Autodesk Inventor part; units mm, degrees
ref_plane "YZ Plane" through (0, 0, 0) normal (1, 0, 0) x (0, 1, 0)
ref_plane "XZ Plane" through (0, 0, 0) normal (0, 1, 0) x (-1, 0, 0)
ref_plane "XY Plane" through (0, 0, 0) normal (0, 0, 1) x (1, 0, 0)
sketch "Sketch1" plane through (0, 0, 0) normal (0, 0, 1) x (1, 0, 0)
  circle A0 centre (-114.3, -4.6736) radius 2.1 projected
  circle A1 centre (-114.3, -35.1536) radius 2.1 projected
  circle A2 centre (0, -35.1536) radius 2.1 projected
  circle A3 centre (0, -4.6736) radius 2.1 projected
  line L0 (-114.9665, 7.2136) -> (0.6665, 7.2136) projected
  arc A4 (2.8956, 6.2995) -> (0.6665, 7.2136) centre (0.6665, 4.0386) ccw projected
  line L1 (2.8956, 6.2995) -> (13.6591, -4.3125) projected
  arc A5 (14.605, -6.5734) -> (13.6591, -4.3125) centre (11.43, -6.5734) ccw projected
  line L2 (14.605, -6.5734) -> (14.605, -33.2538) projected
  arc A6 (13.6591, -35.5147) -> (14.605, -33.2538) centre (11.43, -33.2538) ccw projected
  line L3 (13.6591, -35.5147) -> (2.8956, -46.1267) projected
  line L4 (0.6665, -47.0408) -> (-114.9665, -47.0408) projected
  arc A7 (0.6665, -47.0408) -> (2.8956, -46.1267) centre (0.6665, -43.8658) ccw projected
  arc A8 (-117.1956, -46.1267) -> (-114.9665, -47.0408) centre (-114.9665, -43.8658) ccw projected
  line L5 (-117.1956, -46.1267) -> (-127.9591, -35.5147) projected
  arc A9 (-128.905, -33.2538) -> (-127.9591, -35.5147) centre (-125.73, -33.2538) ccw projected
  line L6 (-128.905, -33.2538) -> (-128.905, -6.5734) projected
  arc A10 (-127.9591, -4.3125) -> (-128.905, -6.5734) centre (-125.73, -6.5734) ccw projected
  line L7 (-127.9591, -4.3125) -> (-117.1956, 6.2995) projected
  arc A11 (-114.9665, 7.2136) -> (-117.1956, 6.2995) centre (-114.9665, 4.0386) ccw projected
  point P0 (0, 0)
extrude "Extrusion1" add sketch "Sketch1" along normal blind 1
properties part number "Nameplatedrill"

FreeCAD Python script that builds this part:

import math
import FreeCAD as App
import Part
import Sketcher
from FreeCAD import Vector
Q = App.Units.Quantity

doc = App.newDocument("Part")
body = doc.addObject("PartDesign::Body", "Body")

# Sketch on XY plane
sketch1 = body.newObject("Sketcher::SketchObject", "Sketch")
sketch1.AttachmentSupport = (doc.getObject("XY_Plane"), [""])
sketch1.MapMode = "FlatFace"
sketch1.addGeometry([
    Part.LineSegment(Vector(0.6665, 7.2136, 0), Vector(-114.9665, 7.2136, 0)),  # 0
    Part.ArcOfCircle(Part.Circle(Vector(-114.9665, 4.0386, 0), Vector(0, 0, 1), 3.175), math.radians(90), math.radians(134.594215)),  # 1
    Part.LineSegment(Vector(-117.1956, 6.2995, 0), Vector(-127.9591, -4.3125, 0)),  # 2
    Part.ArcOfCircle(Part.Circle(Vector(-125.73, -6.5734, 0), Vector(0, 0, 1), 3.174989), math.radians(134.594215), math.radians(180)),  # 3
    Part.LineSegment(Vector(-128.905, -6.5734, 0), Vector(-128.905, -33.2538, 0)),  # 4
    Part.ArcOfCircle(Part.Circle(Vector(-125.73, -33.2538, 0), Vector(0, 0, 1), 3.175), math.radians(180), math.radians(225.405785)),  # 5
    Part.LineSegment(Vector(-127.9591, -35.5147, 0), Vector(-117.1956, -46.1267, 0)),  # 6
    Part.ArcOfCircle(Part.Circle(Vector(-114.9665, -43.8658, 0), Vector(0, 0, 1), 3.174989), math.radians(-134.594215), math.radians(-90)),  # 7
    Part.LineSegment(Vector(-114.9665, -47.0408, 0), Vector(0.6665, -47.0408, 0)),  # 8
    Part.ArcOfCircle(Part.Circle(Vector(0.6665, -43.8658, 0), Vector(0, 0, 1), 3.175), math.radians(-90), math.radians(-45.405785)),  # 9
    Part.LineSegment(Vector(2.8956, -46.1267, 0), Vector(13.6591, -35.5147, 0)),  # 10
    Part.ArcOfCircle(Part.Circle(Vector(11.43, -33.2538, 0), Vector(0, 0, 1), 3.174989), math.radians(-45.405785), math.radians(0)),  # 11
    Part.LineSegment(Vector(14.605, -33.2538, 0), Vector(14.605, -6.5734, 0)),  # 12
    Part.ArcOfCircle(Part.Circle(Vector(11.43, -6.5734, 0), Vector(0, 0, 1), 3.175), math.radians(0), math.radians(45.405785)),  # 13
    Part.LineSegment(Vector(13.6591, -4.3125, 0), Vector(2.8956, 6.2995, 0)),  # 14
    Part.ArcOfCircle(Part.Circle(Vector(0.6665, 4.0386, 0), Vector(0, 0, 1), 3.174989), math.radians(45.405785), math.radians(90)),  # 15
    Part.Circle(Vector(-114.3, -35.1536, 0), Vector(0, 0, 1), 2.1),  # 16
    Part.Circle(Vector(0, -35.1536, 0), Vector(0, 0, 1), 2.1),  # 17
    Part.Circle(Vector(-114.3, -4.6736, 0), Vector(0, 0, 1), 2.1),  # 18
    Part.Circle(Vector(0, -4.6736, 0), Vector(0, 0, 1), 2.1),  # 19
], False)
sketch1.addConstraint([
    Sketcher.Constraint("Tangent", 0, 2, 1, 1),
    Sketcher.Constraint("Tangent", 1, 2, 2, 1),
    Sketcher.Constraint("Tangent", 2, 2, 3, 1),
    Sketcher.Constraint("Tangent", 3, 2, 4, 1),
    Sketcher.Constraint("Tangent", 4, 2, 5, 1),
    Sketcher.Constraint("Tangent", 5, 2, 6, 1),
    Sketcher.Constraint("Tangent", 6, 2, 7, 1),
    Sketcher.Constraint("Tangent", 7, 2, 8, 1),
    Sketcher.Constraint("Tangent", 8, 2, 9, 1),
    Sketcher.Constraint("Tangent", 9, 2, 10, 1),
    Sketcher.Constraint("Tangent", 10, 2, 11, 1),
    Sketcher.Constraint("Tangent", 11, 2, 12, 1),
    Sketcher.Constraint("Tangent", 12, 2, 13, 1),
    Sketcher.Constraint("Tangent", 13, 2, 14, 1),
    Sketcher.Constraint("Tangent", 14, 2, 15, 1),
    Sketcher.Constraint("Tangent", 15, 2, 0, 1),
    Sketcher.Constraint("Horizontal", 0),
    Sketcher.Constraint("Vertical", 4),
    Sketcher.Constraint("Horizontal", 8),
    Sketcher.Constraint("Vertical", 12),
    Sketcher.Constraint("Equal", 1, 3),
    Sketcher.Constraint("Equal", 3, 5),
    Sketcher.Constraint("Equal", 5, 7),
    Sketcher.Constraint("Equal", 7, 9),
    Sketcher.Constraint("Equal", 9, 11),
    Sketcher.Constraint("Equal", 11, 13),
    Sketcher.Constraint("Equal", 13, 15),
    Sketcher.Constraint("Equal", 16, 17),
    Sketcher.Constraint("Equal", 17, 18),
    Sketcher.Constraint("Equal", 18, 19),
    Sketcher.Constraint("PointOnObject", 17, 3, -2),
    Sketcher.Constraint("PointOnObject", 19, 3, -2),
    Sketcher.Constraint("Parallel", 2, 10),
    Sketcher.Constraint("Parallel", 6, 14),
    Sketcher.Constraint("Horizontal", 5, 3, 11, 3),
    Sketcher.Constraint("Horizontal", 3, 3, 13, 3),
    Sketcher.Constraint("Horizontal", 16, 3, 17, 3),
    Sketcher.Constraint("Horizontal", 18, 3, 19, 3),
    Sketcher.Constraint("Horizontal", 6, 2, 9, 2),
    Sketcher.Constraint("Vertical", 1, 3, 7, 3),
    Sketcher.Constraint("Vertical", 16, 3, 18, 3),
    Sketcher.Constraint("Diameter", 16, Q("4.2 mm")),
    Sketcher.Constraint("Radius", 1, Q("3.175 mm")),
    Sketcher.Constraint("DistanceX", 16, 3, -1, 1, Q("114.3 mm")),
    Sketcher.Constraint("DistanceX", 0, 2, 0, 1, Q("115.633 mm")),
    Sketcher.Constraint("DistanceX", 3, 3, -1, 1, Q("125.73 mm")),
    Sketcher.Constraint("DistanceX", -1, 1, 11, 3, Q("11.43 mm")),
    Sketcher.Constraint("DistanceY", 16, 3, 18, 3, Q("30.48 mm")),
    Sketcher.Constraint("DistanceY", 4, 2, 4, 1, Q("26.6804 mm")),
    Sketcher.Constraint("DistanceX", 2, 2, -1, 1, Q("127.959 mm")),
    Sketcher.Constraint("DistanceY", 18, 3, 1, 2, Q("10.973 mm")),
    Sketcher.Constraint("DistanceY", -1, 1, 1, 3, Q("4.0386 mm")),
])
pad1 = body.newObject("PartDesign::Pad", "Pad")
pad1.Profile = sketch1
pad1.Length = 1

doc.recompute()
